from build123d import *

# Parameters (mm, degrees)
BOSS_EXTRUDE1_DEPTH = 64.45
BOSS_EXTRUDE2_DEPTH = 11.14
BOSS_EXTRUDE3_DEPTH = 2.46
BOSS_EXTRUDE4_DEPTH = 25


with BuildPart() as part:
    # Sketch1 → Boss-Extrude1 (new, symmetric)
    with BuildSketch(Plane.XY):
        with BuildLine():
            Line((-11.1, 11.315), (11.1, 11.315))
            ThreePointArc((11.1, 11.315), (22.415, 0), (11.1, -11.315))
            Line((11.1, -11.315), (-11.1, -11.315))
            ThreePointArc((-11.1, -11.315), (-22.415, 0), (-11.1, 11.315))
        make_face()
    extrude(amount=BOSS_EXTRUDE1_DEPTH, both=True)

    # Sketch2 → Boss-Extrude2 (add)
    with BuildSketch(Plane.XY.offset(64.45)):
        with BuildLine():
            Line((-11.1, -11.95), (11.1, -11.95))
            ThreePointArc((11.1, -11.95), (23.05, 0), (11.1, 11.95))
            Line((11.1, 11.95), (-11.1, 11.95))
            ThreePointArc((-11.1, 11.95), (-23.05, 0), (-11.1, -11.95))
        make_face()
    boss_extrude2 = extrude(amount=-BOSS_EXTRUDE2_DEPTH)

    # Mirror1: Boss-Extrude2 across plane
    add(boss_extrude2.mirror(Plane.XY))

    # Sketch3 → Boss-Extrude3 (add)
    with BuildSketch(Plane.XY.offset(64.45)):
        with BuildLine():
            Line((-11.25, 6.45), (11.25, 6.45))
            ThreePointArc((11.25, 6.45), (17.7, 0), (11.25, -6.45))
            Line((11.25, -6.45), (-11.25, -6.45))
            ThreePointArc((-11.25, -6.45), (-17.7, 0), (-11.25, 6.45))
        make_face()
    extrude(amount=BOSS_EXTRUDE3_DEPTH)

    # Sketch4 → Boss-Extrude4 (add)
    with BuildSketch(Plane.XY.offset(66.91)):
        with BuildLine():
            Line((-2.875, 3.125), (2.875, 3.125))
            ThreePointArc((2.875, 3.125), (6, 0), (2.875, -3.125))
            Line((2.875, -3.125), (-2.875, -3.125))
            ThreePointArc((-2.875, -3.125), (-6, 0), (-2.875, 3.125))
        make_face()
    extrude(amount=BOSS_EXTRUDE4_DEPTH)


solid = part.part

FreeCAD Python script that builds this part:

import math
import FreeCAD as App
import Part
import Sketcher
Q = App.Units.Quantity

doc = App.newDocument("Part")
body = doc.addObject("PartDesign::Body", "Body")

# Sketch on XY plane
sketch1 = body.newObject("Sketcher::SketchObject", "Sketch")
sketch1.AttachmentSupport = (doc.getObject("XY_Plane"), [""])
sketch1.MapMode = "FlatFace"
sketch1.addGeometry(Part.LineSegment(App.Vector(11, 11, 0), App.Vector(-11, 11, 0)), False)
sketch1.addGeometry(Part.ArcOfCircle(Part.Circle(App.Vector(-11, 0, 0), App.Vector(0, 0, 1), 11), math.radians(90), math.radians(270)), False)
sketch1.addGeometry(Part.LineSegment(App.Vector(-11, -11, 0), App.Vector(11, -11, 0)), False)
sketch1.addGeometry(Part.ArcOfCircle(Part.Circle(App.Vector(11, 0, 0), App.Vector(0, 0, 1), 11), math.radians(-90), math.radians(90)), False)
sketch1.addConstraint(Sketcher.Constraint("Tangent", 0, 2, 1, 1))
sketch1.addConstraint(Sketcher.Constraint("Tangent", 1, 2, 2, 1))
sketch1.addConstraint(Sketcher.Constraint("Tangent", 2, 2, 3, 1))
sketch1.addConstraint(Sketcher.Constraint("Tangent", 3, 2, 0, 1))
sketch1.addConstraint(Sketcher.Constraint("Horizontal", 0))
sketch1.addConstraint(Sketcher.Constraint("Horizontal", 2))
sketch1.addConstraint(Sketcher.Constraint("Symmetric", 1, 3, 3, 3, -1, 1))
sketch1.addConstraint(Sketcher.Constraint("DistanceX", 0, 2, 0, 1, Q("22.2 mm")))
sketch1.addConstraint(Sketcher.Constraint("Radius", 1, Q("11.315 mm")))
pad1 = body.newObject("PartDesign::Pad", "Pad")
pad1.Profile = sketch1
pad1.Length = 128.9
pad1.Midplane = True

# Sketch on XY plane
sketch2 = body.newObject("Sketcher::SketchObject", "Sketch001")
sketch2.AttachmentSupport = (doc.getObject("XY_Plane"), [""])
sketch2.MapMode = "FlatFace"
sketch2.AttachmentOffset = App.Placement(App.Vector(0, 0, 64.45), App.Rotation())
sketch2.addGeometry(Part.LineSegment(App.Vector(-11, -12, 0), App.Vector(11, -12, 0)), False)
sketch2.addGeometry(Part.ArcOfCircle(Part.Circle(App.Vector(11, 0, 0), App.Vector(0, 0, 1), 12), math.radians(-90), math.radians(90)), False)
sketch2.addGeometry(Part.LineSegment(App.Vector(11, 12, 0), App.Vector(-11, 12, 0)), False)
sketch2.addGeometry(Part.ArcOfCircle(Part.Circle(App.Vector(-11, 0, 0), App.Vector(0, 0, 1), 12), math.radians(90), math.radians(270)), False)
sketch2.addConstraint(Sketcher.Constraint("Tangent", 0, 2, 1, 1))
sketch2.addConstraint(Sketcher.Constraint("Tangent", 1, 2, 2, 1))
sketch2.addConstraint(Sketcher.Constraint("Tangent", 2, 2, 3, 1))
sketch2.addConstraint(Sketcher.Constraint("Tangent", 3, 2, 0, 1))
sketch2.addConstraint(Sketcher.Constraint("Horizontal", 0))
sketch2.addConstraint(Sketcher.Constraint("Horizontal", 2))
sketch2.addConstraint(Sketcher.Constraint("Symmetric", 1, 3, 3, 3, -1, 1))
sketch2.addConstraint(Sketcher.Constraint("Radius", 1, Q("11.95 mm")))
sketch2.addConstraint(Sketcher.Constraint("DistanceX", 0, 1, 0, 2, Q("22.2 mm")))
pad2 = body.newObject("PartDesign::Pad", "Pad001")
pad2.Profile = sketch2
pad2.Length = 11.14
pad2.Reversed = True
doc.recompute()

mirrored = body.newObject("PartDesign::Mirrored", "Mirrored")
mirrored.Originals = [pad2]
mirrored.MirrorPlane = (doc.getObject("XY_Plane"), [""])
body.Tip = mirrored

# Sketch on XY plane
sketch3 = body.newObject("Sketcher::SketchObject", "Sketch002")
sketch3.AttachmentSupport = (doc.getObject("XY_Plane"), [""])
sketch3.MapMode = "FlatFace"
sketch3.AttachmentOffset = App.Placement(App.Vector(0, 0, 64.45), App.Rotation())
sketch3.addGeometry(Part.LineSegment(App.Vector(11, 6, 0), App.Vector(-11, 6, 0)), False)
sketch3.addGeometry(Part.ArcOfCircle(Part.Circle(App.Vector(-11, 0, 0), App.Vector(0, 0, 1), 6), math.radians(90), math.radians(270)), False)
sketch3.addGeometry(Part.LineSegment(App.Vector(-11, -6, 0), App.Vector(11, -6, 0)), False)
sketch3.addGeometry(Part.ArcOfCircle(Part.Circle(App.Vector(11, 0, 0), App.Vector(0, 0, 1), 6), math.radians(-90), math.radians(90)), False)
sketch3.addConstraint(Sketcher.Constraint("Tangent", 0, 2, 1, 1))
sketch3.addConstraint(Sketcher.Constraint("Tangent", 1, 2, 2, 1))
sketch3.addConstraint(Sketcher.Constraint("Tangent", 2, 2, 3, 1))
sketch3.addConstraint(Sketcher.Constraint("Tangent", 3, 2, 0, 1))
sketch3.addConstraint(Sketcher.Constraint("Horizontal", 0))
sketch3.addConstraint(Sketcher.Constraint("Horizontal", 2))
sketch3.addConstraint(Sketcher.Constraint("Symmetric", 1, 3, 3, 3, -1, 1))
sketch3.addConstraint(Sketcher.Constraint("Radius", 1, Q("6.45 mm")))
sketch3.addConstraint(Sketcher.Constraint("DistanceX", 0, 2, 0, 1, Q("22.5 mm")))
pad3 = body.newObject("PartDesign::Pad", "Pad002")
pad3.Profile = sketch3
pad3.Length = 2.46

# Sketch on XY plane
sketch4 = body.newObject("Sketcher::SketchObject", "Sketch003")
sketch4.AttachmentSupport = (doc.getObject("XY_Plane"), [""])
sketch4.MapMode = "FlatFace"
sketch4.AttachmentOffset = App.Placement(App.Vector(0, 0, 66.91), App.Rotation())
sketch4.addGeometry(Part.LineSegment(App.Vector(2.9, 3.1, 0), App.Vector(-2.9, 3.1, 0)), False)
sketch4.addGeometry(Part.ArcOfCircle(Part.Circle(App.Vector(-2.9, 0, 0), App.Vector(0, 0, 1), 3.1), math.radians(90), math.radians(270)), False)
sketch4.addGeometry(Part.LineSegment(App.Vector(-2.9, -3.1, 0), App.Vector(2.9, -3.1, 0)), False)
sketch4.addGeometry(Part.ArcOfCircle(Part.Circle(App.Vector(2.9, 0, 0), App.Vector(0, 0, 1), 3.1), math.radians(-90), math.radians(90)), False)
sketch4.addConstraint(Sketcher.Constraint("Tangent", 0, 2, 1, 1))
sketch4.addConstraint(Sketcher.Constraint("Tangent", 1, 2, 2, 1))
sketch4.addConstraint(Sketcher.Constraint("Tangent", 2, 2, 3, 1))
sketch4.addConstraint(Sketcher.Constraint("Tangent", 3, 2, 0, 1))
sketch4.addConstraint(Sketcher.Constraint("Horizontal", 0))
sketch4.addConstraint(Sketcher.Constraint("Horizontal", 2))
sketch4.addConstraint(Sketcher.Constraint("Symmetric", 1, 3, 3, 3, -1, 1))
sketch4.addConstraint(Sketcher.Constraint("Radius", 1, Q("3.125 mm")))
sketch4.addConstraint(Sketcher.Constraint("DistanceX", 0, 2, 0, 1, Q("5.75 mm")))
pad4 = body.newObject("PartDesign::Pad", "Pad003")
pad4.Profile = sketch4
pad4.Length = 25

doc.recompute()
